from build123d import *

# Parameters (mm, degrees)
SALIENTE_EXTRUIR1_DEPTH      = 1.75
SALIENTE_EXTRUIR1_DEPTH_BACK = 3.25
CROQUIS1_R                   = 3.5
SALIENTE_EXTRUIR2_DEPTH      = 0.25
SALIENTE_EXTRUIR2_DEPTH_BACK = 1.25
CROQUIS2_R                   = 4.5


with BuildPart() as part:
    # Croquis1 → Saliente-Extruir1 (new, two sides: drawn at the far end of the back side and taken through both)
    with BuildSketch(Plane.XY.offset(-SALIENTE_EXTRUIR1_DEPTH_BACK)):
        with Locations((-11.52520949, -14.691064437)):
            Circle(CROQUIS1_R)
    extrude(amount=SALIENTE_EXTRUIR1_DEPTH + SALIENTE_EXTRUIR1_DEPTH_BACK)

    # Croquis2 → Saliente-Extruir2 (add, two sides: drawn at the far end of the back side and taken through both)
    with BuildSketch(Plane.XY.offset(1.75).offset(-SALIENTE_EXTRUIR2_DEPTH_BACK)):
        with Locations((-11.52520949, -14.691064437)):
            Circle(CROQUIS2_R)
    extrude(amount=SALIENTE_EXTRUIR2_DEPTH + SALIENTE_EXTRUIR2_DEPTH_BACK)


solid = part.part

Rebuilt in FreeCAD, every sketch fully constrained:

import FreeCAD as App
import Part
import Sketcher

V = App.Vector
Q = App.Units.Quantity

doc = App.newDocument("Part")
body = doc.addObject("PartDesign::Body", "Body")

# Sketch on XY plane
sketch1 = body.newObject("Sketcher::SketchObject", "Sketch")
sketch1.AttachmentSupport = (doc.getObject("XY_Plane"), [""])
sketch1.MapMode = "FlatFace"
sketch1.addGeometry(Part.Circle(V(-11.525209, -14.691064, 0), V(0, 0, 1), 3.5), False)
sketch1.addConstraint(Sketcher.Constraint("Diameter", 0, Q("7 mm")))
sketch1.addConstraint(Sketcher.Constraint("DistanceX", 0, 3, -1, 1, Q("11.525209 mm")))
sketch1.addConstraint(Sketcher.Constraint("DistanceY", 0, 3, -1, 1, Q("14.691064 mm")))
pad1 = body.newObject("PartDesign::Pad", "Pad")
pad1.Profile = sketch1
pad1.Type = "TwoLengths"
pad1.Length = 1.75
pad1.Length2 = 3.25

# Sketch on XY plane
sketch2 = body.newObject("Sketcher::SketchObject", "Sketch001")
sketch2.AttachmentSupport = (doc.getObject("XY_Plane"), [""])
sketch2.MapMode = "FlatFace"
sketch2.AttachmentOffset = App.Placement(V(0, 0, 1.75), App.Rotation())
sketch2.addGeometry(Part.Circle(V(-11.525209, -14.691064, 0), V(0, 0, 1), 4.5), False)
sketch2.addConstraint(Sketcher.Constraint("Diameter", 0, Q("9 mm")))
sketch2.addConstraint(Sketcher.Constraint("DistanceX", 0, 3, -1, 1, Q("11.525209 mm")))
sketch2.addConstraint(Sketcher.Constraint("DistanceY", 0, 3, -1, 1, Q("14.691064 mm")))
pad2 = body.newObject("PartDesign::Pad", "Pad001")
pad2.Profile = sketch2
pad2.Type = "TwoLengths"
pad2.Length = 0.25
pad2.Length2 = 1.25

doc.recompute()
